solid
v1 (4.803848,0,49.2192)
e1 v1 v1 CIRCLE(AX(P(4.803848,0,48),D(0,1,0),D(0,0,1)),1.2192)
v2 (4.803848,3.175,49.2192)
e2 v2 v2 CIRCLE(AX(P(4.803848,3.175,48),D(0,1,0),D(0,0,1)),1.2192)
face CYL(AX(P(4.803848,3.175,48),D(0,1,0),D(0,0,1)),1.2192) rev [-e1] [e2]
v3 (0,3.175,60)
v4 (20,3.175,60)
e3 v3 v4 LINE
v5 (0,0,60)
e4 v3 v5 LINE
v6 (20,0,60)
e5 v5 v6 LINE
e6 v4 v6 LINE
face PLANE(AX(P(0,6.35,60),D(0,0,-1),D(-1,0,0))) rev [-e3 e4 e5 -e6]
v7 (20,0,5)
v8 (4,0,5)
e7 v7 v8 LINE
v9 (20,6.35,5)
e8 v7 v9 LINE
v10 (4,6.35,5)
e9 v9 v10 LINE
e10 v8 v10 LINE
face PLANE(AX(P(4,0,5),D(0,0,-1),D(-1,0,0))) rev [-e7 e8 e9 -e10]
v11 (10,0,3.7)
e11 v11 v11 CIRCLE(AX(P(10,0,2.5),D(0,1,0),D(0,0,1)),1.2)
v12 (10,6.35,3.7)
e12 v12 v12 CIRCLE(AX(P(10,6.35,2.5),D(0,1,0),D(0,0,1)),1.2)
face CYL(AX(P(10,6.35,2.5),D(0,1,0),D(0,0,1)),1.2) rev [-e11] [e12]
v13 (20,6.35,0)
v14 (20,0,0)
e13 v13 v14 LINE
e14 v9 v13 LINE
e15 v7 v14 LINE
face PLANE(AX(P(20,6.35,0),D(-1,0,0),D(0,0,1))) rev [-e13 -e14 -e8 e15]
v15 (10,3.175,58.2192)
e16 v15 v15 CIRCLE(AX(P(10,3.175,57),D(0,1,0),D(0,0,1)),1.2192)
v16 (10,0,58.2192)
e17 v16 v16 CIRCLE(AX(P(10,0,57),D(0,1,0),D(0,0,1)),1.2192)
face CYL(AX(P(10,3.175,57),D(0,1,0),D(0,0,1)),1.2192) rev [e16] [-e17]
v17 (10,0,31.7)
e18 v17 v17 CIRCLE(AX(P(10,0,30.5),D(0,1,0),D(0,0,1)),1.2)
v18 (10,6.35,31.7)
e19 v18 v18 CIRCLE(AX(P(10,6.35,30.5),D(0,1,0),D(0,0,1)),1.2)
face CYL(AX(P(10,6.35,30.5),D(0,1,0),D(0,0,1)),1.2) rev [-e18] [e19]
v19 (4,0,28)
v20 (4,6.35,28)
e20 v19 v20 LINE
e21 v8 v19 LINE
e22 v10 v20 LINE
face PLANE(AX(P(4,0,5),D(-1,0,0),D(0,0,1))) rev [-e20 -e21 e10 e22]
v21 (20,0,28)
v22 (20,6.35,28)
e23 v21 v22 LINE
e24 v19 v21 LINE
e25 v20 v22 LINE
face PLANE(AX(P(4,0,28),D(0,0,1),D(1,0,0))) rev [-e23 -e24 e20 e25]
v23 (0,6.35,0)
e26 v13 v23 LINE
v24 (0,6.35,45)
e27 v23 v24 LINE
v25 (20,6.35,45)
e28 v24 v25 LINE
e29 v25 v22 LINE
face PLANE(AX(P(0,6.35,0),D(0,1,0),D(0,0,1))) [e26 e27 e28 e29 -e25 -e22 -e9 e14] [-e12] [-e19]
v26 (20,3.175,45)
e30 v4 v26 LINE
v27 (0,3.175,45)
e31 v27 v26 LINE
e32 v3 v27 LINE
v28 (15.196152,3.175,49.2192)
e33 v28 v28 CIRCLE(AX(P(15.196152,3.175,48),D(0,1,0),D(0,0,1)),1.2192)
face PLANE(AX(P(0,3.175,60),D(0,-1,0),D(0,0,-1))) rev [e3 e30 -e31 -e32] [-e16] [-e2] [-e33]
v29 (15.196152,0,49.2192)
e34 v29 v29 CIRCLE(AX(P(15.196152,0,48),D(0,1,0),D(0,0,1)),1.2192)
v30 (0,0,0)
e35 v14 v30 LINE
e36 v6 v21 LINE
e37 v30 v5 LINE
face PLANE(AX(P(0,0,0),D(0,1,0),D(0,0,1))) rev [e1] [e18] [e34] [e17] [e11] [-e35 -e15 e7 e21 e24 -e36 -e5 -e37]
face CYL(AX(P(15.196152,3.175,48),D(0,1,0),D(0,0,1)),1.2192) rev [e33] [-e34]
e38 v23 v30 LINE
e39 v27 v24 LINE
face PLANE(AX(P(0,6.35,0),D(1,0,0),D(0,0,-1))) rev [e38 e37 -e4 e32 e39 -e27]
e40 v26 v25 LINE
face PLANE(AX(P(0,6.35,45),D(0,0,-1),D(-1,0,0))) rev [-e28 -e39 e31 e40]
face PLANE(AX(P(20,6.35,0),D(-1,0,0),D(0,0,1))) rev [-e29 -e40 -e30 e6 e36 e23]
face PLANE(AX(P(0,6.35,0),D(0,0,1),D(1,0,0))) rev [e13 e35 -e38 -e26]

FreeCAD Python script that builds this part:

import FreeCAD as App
import Part
import Sketcher
from FreeCAD import Vector
Q = App.Units.Quantity

doc = App.newDocument("Part")
body = doc.addObject("PartDesign::Body", "Body")

# Sketch on XZ plane
sketch1 = body.newObject("Sketcher::SketchObject", "Sketch")
sketch1.AttachmentSupport = (doc.getObject("XZ_Plane"), [""])
sketch1.MapMode = "FlatFace"
sketch1.addGeometry(Part.LineSegment(Vector(0, 0, 0), Vector(0, 60, 0)), False)
sketch1.addGeometry(Part.LineSegment(Vector(0, 60, 0), Vector(20, 60, 0)), False)
sketch1.addGeometry(Part.LineSegment(Vector(20, 60, 0), Vector(20, 0, 0)), False)
sketch1.addGeometry(Part.LineSegment(Vector(20, 0, 0), Vector(0, 0, 0)), False)
sketch1.addConstraint(Sketcher.Constraint("Coincident", 0, 2, 1, 1))
sketch1.addConstraint(Sketcher.Constraint("Coincident", 1, 2, 2, 1))
sketch1.addConstraint(Sketcher.Constraint("Coincident", 2, 2, 3, 1))
sketch1.addConstraint(Sketcher.Constraint("Coincident", 3, 2, 0, 1))
sketch1.addConstraint(Sketcher.Constraint("Vertical", 0))
sketch1.addConstraint(Sketcher.Constraint("Horizontal", 1))
sketch1.addConstraint(Sketcher.Constraint("Vertical", 2))
sketch1.addConstraint(Sketcher.Constraint("Horizontal", 3))
sketch1.addConstraint(Sketcher.Constraint("Coincident", 3, 2, -1, 1))
sketch1.addConstraint(Sketcher.Constraint("DistanceX", 1, 1, 1, 2, Q("20 mm")))
sketch1.addConstraint(Sketcher.Constraint("DistanceY", 0, 1, 0, 2, Q("60 mm")))
pad1 = body.newObject("PartDesign::Pad", "Pad")
pad1.Profile = sketch1
pad1.Length = 6.35
pad1.Reversed = True

# Sketch on XZ plane
sketch2 = body.newObject("Sketcher::SketchObject", "Sketch001")
sketch2.AttachmentSupport = (doc.getObject("XZ_Plane"), [""])
sketch2.MapMode = "FlatFace"
sketch2.AttachmentOffset = App.Placement(Vector(0, 0, -6.35), App.Rotation())
sketch2.addGeometry(Part.LineSegment(Vector(4, 5, 0), Vector(4, 28, 0)), False)
sketch2.addGeometry(Part.LineSegment(Vector(4, 28, 0), Vector(20, 28, 0)), False)
sketch2.addGeometry(Part.LineSegment(Vector(20, 28, 0), Vector(20, 5, 0)), False)
sketch2.addGeometry(Part.LineSegment(Vector(20, 5, 0), Vector(4, 5, 0)), False)
sketch2.addConstraint(Sketcher.Constraint("Coincident", 0, 2, 1, 1))
sketch2.addConstraint(Sketcher.Constraint("Coincident", 1, 2, 2, 1))
sketch2.addConstraint(Sketcher.Constraint("Coincident", 2, 2, 3, 1))
sketch2.addConstraint(Sketcher.Constraint("Coincident", 3, 2, 0, 1))
sketch2.addConstraint(Sketcher.Constraint("Vertical", 0))
sketch2.addConstraint(Sketcher.Constraint("Horizontal", 1))
sketch2.addConstraint(Sketcher.Constraint("Vertical", 2))
sketch2.addConstraint(Sketcher.Constraint("Horizontal", 3))
sketch2.addConstraint(Sketcher.Constraint("DistanceX", 1, 1, 1, 2, Q("16 mm")))
sketch2.addConstraint(Sketcher.Constraint("DistanceY", 0, 1, 0, 2, Q("23 mm")))
sketch2.addConstraint(Sketcher.Constraint("DistanceX", -1, 1, 0, 2, Q("4 mm")))
sketch2.addConstraint(Sketcher.Constraint("DistanceY", -1, 1, 0, 2, Q("28 mm")))
pocket1 = body.newObject("PartDesign::Pocket", "Pocket")
pocket1.Profile = sketch2
pocket1.Type = "ThroughAll"
pocket1.Reversed = True

# Sketch on XZ plane
sketch3 = body.newObject("Sketcher::SketchObject", "Sketch002")
sketch3.AttachmentSupport = (doc.getObject("XZ_Plane"), [""])
sketch3.MapMode = "FlatFace"
sketch3.AttachmentOffset = App.Placement(Vector(0, 0, -6.35), App.Rotation())
sketch3.addGeometry(Part.Circle(Vector(10, 30.5, 0), Vector(0, 0, 1), 1.2), False)
sketch3.addGeometry(Part.Circle(Vector(10, 2.5, 0), Vector(0, 0, 1), 1.2), False)
sketch3.addConstraint(Sketcher.Constraint("Equal", 0, 1))
sketch3.addConstraint(Sketcher.Constraint("Vertical", 0, 3, 1, 3))
sketch3.addConstraint(Sketcher.Constraint("Diameter", 0, Q("2.4 mm")))
sketch3.addConstraint(Sketcher.Constraint("DistanceX", -1, 1, 0, 3, Q("10 mm")))
sketch3.addConstraint(Sketcher.Constraint("DistanceY", 1, 3, 0, 3, Q("28 mm")))
sketch3.addConstraint(Sketcher.Constraint("DistanceY", -1, 1, 0, 3, Q("30.5 mm")))
doc.recompute()
hole = body.newObject("PartDesign::Hole", "Hole")
hole.Profile = sketch3
hole.ThreadType = "None"
hole.Diameter = 2.4
hole.DepthType = "ThroughAll"
hole.Reversed = True

# Sketch on YZ plane
sketch4 = body.newObject("Sketcher::SketchObject", "Sketch003")
sketch4.AttachmentSupport = (doc.getObject("YZ_Plane"), [""])
sketch4.MapMode = "FlatFace"
sketch4.AttachmentOffset = App.Placement(Vector(0, 0, 20), App.Rotation())
sketch4.addGeometry(Part.LineSegment(Vector(6.3, 60, 0), Vector(3.2, 60, 0)), False)
sketch4.addGeometry(Part.LineSegment(Vector(3.2, 60, 0), Vector(3.2, 45, 0)), False)
sketch4.addGeometry(Part.LineSegment(Vector(3.2, 45, 0), Vector(6.3, 45, 0)), False)
sketch4.addGeometry(Part.LineSegment(Vector(6.3, 45, 0), Vector(6.3, 60, 0)), False)
sketch4.addConstraint(Sketcher.Constraint("Coincident", 0, 2, 1, 1))
sketch4.addConstraint(Sketcher.Constraint("Coincident", 1, 2, 2, 1))
sketch4.addConstraint(Sketcher.Constraint("Coincident", 2, 2, 3, 1))
sketch4.addConstraint(Sketcher.Constraint("Coincident", 3, 2, 0, 1))
sketch4.addConstraint(Sketcher.Constraint("Horizontal", 0))
sketch4.addConstraint(Sketcher.Constraint("Vertical", 1))
sketch4.addConstraint(Sketcher.Constraint("Horizontal", 2))
sketch4.addConstraint(Sketcher.Constraint("Vertical", 3))
sketch4.addConstraint(Sketcher.Constraint("DistanceY", 1, 2, 1, 1, Q("15 mm")))
sketch4.addConstraint(Sketcher.Constraint("DistanceY", -1, 1, 0, 2, Q("60 mm")))
sketch4.addConstraint(Sketcher.Constraint("DistanceX", 0, 2, 0, 1, Q("3.175 mm")))
sketch4.addConstraint(Sketcher.Constraint("DistanceX", -1, 1, 2, 2, Q("6.35 mm")))
pocket2 = body.newObject("PartDesign::Pocket", "Pocket001")
pocket2.Profile = sketch4
pocket2.Type = "ThroughAll"

# Sketch on XZ plane
sketch5 = body.newObject("Sketcher::SketchObject", "Sketch004")
sketch5.AttachmentSupport = (doc.getObject("XZ_Plane"), [""])
sketch5.MapMode = "FlatFace"
sketch5.AttachmentOffset = App.Placement(Vector(0, 0, -3.175), App.Rotation())
sketch5.addGeometry(Part.Circle(Vector(4.8, 48, 0), Vector(0, 0, 1), 1.2), False)
sketch5.addGeometry(Part.Circle(Vector(15.2, 48, 0), Vector(0, 0, 1), 1.2), False)
sketch5.addGeometry(Part.Circle(Vector(10, 57, 0), Vector(0, 0, 1), 1.2), False)
sketch5.addConstraint(Sketcher.Constraint("Equal", 0, 1))
sketch5.addConstraint(Sketcher.Constraint("Equal", 1, 2))
sketch5.addConstraint(Sketcher.Constraint("Horizontal", 0, 3, 1, 3))
sketch5.addConstraint(Sketcher.Constraint("DistanceY", -1, 1, 0, 3, Q("48 mm")))
sketch5.addConstraint(Sketcher.Constraint("DistanceX", -1, 1, 2, 3, Q("10 mm")))
sketch5.addConstraint(Sketcher.Constraint("DistanceY", -1, 1, 2, 3, Q("57 mm")))
sketch5.addConstraint(Sketcher.Constraint("Diameter", 0, Q("2.4384 mm")))
sketch5.addConstraint(Sketcher.Constraint("DistanceX", -1, 1, 0, 3, Q("4.803848 mm")))
sketch5.addConstraint(Sketcher.Constraint("DistanceX", -1, 1, 1, 3, Q("15.196152 mm")))
doc.recompute()
hole2 = body.newObject("PartDesign::Hole", "Hole001")
hole2.Profile = sketch5
hole2.ThreadType = "None"
hole2.Diameter = 2.4384
hole2.DepthType = "ThroughAll"
hole2.Reversed = True

doc.recompute()
